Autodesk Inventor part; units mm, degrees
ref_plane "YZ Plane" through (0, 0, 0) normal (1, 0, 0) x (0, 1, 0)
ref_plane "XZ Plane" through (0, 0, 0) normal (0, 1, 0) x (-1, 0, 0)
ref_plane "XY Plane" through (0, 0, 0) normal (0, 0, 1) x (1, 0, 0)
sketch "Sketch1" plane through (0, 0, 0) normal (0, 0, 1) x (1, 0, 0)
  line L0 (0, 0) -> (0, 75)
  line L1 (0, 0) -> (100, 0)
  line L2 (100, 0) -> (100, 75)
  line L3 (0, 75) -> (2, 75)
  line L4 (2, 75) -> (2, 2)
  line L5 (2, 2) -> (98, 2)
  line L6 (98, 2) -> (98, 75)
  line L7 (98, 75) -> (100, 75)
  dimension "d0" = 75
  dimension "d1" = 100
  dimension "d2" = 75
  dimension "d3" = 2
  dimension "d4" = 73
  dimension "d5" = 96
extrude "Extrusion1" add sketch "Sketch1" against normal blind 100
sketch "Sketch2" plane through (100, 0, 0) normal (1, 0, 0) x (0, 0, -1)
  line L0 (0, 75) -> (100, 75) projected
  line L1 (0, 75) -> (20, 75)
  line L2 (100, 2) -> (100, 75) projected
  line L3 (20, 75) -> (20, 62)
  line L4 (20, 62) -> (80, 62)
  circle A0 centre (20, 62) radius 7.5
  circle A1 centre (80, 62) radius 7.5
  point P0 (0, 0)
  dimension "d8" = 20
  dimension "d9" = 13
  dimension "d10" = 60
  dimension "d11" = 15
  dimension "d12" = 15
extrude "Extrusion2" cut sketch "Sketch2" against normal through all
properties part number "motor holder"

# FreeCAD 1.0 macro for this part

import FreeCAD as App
import Part
import Sketcher

V = App.Vector
Q = App.Units.Quantity

doc = App.newDocument("Part")
body = doc.addObject("PartDesign::Body", "Body")

sketch1 = body.newObject("Sketcher::SketchObject", "Sketch")
sketch1.AttachmentSupport = (doc.getObject("XY_Plane"), [""])
sketch1.MapMode = "FlatFace"
sketch1.addGeometry(Part.LineSegment(V(0, 75, 0), V(0, 0, 0)), False)
sketch1.addGeometry(Part.LineSegment(V(0, 0, 0), V(100, 0, 0)), False)
sketch1.addGeometry(Part.LineSegment(V(100, 0, 0), V(100, 75, 0)), False)
sketch1.addGeometry(Part.LineSegment(V(100, 75, 0), V(98, 75, 0)), False)
sketch1.addGeometry(Part.LineSegment(V(98, 75, 0), V(98, 2, 0)), False)
sketch1.addGeometry(Part.LineSegment(V(98, 2, 0), V(2, 2, 0)), False)
sketch1.addGeometry(Part.LineSegment(V(2, 2, 0), V(2, 75, 0)), False)
sketch1.addGeometry(Part.LineSegment(V(2, 75, 0), V(0, 75, 0)), False)
sketch1.addConstraint(Sketcher.Constraint("Coincident", 0, 2, 1, 1))
sketch1.addConstraint(Sketcher.Constraint("Coincident", 1, 2, 2, 1))
sketch1.addConstraint(Sketcher.Constraint("Coincident", 2, 2, 3, 1))
sketch1.addConstraint(Sketcher.Constraint("Coincident", 3, 2, 4, 1))
sketch1.addConstraint(Sketcher.Constraint("Coincident", 4, 2, 5, 1))
sketch1.addConstraint(Sketcher.Constraint("Coincident", 5, 2, 6, 1))
sketch1.addConstraint(Sketcher.Constraint("Coincident", 6, 2, 7, 1))
sketch1.addConstraint(Sketcher.Constraint("Coincident", 7, 2, 0, 1))
sketch1.addConstraint(Sketcher.Constraint("Vertical", 0))
sketch1.addConstraint(Sketcher.Constraint("Horizontal", 1))
sketch1.addConstraint(Sketcher.Constraint("Vertical", 2))
sketch1.addConstraint(Sketcher.Constraint("Horizontal", 3))
sketch1.addConstraint(Sketcher.Constraint("Vertical", 4))
sketch1.addConstraint(Sketcher.Constraint("Horizontal", 5))
sketch1.addConstraint(Sketcher.Constraint("Vertical", 6))
sketch1.addConstraint(Sketcher.Constraint("Horizontal", 7))
sketch1.addConstraint(Sketcher.Constraint("Coincident", 0, 2, -1, 1))
sketch1.addConstraint(Sketcher.Constraint("Horizontal", 3, 2, 6, 2))
sketch1.addConstraint(Sketcher.Constraint("Equal", 3, 7))
sketch1.addConstraint(Sketcher.Constraint("DistanceX", 1, 1, 1, 2, Q("100 mm")))
sketch1.addConstraint(Sketcher.Constraint("DistanceX", 3, 2, 3, 1, Q("2 mm")))
sketch1.addConstraint(Sketcher.Constraint("DistanceY", 0, 2, 0, 1, Q("75 mm")))
sketch1.addConstraint(Sketcher.Constraint("DistanceY", 4, 2, 4, 1, Q("73 mm")))
pad1 = body.newObject("PartDesign::Pad", "Pad")
pad1.Profile = sketch1
pad1.Length = 100
pad1.Reversed = True

sketch2 = body.newObject("Sketcher::SketchObject", "Sketch001")
sketch2.AttachmentSupport = (doc.getObject("YZ_Plane"), [""])
sketch2.MapMode = "FlatFace"
sketch2.AttachmentOffset = App.Placement(V(0, 0, 100), App.Rotation())
sketch2.addGeometry(Part.Circle(V(62, -20, 0), V(0, 0, 1), 8), False)
sketch2.addGeometry(Part.Circle(V(62, -80, 0), V(0, 0, 1), 8), False)
sketch2.addConstraint(Sketcher.Constraint("Equal", 0, 1))
sketch2.addConstraint(Sketcher.Constraint("Vertical", 0, 3, 1, 3))
sketch2.addConstraint(Sketcher.Constraint("Diameter", 0, Q("15 mm")))
sketch2.addConstraint(Sketcher.Constraint("DistanceY", 0, 3, -1, 1, Q("20 mm")))
sketch2.addConstraint(Sketcher.Constraint("DistanceY", 1, 3, 0, 3, Q("60 mm")))
sketch2.addConstraint(Sketcher.Constraint("DistanceX", -1, 1, 0, 3, Q("62 mm")))
pocket1 = body.newObject("PartDesign::Pocket", "Pocket")
pocket1.Profile = sketch2
pocket1.Type = "ThroughAll"

doc.recompute()
